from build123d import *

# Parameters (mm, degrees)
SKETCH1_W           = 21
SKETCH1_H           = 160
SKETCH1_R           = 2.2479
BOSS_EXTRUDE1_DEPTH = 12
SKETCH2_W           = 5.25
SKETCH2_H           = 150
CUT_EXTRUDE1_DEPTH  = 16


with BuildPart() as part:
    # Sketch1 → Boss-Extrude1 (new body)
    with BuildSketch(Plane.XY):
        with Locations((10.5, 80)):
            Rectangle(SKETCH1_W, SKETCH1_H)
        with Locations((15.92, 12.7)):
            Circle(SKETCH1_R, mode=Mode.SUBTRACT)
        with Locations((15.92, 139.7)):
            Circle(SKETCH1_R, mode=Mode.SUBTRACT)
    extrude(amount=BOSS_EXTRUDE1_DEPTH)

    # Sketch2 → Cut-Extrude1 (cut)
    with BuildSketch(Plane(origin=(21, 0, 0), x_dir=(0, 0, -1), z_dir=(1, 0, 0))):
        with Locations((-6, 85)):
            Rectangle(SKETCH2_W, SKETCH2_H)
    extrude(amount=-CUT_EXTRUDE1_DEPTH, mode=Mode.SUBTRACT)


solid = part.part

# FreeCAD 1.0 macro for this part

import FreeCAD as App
import Part
import Sketcher
from FreeCAD import Vector


def add_polygon(sketch, points):
    """Adds a closed chain of lines whose ends are joined by coincident constraints."""
    first, n = sketch.GeometryCount, len(points)
    for a, b in zip(points, points[1:] + points[:1]):
        sketch.addGeometry(Part.LineSegment(App.Vector(*a, 0), App.Vector(*b, 0)), False)
    for i in range(n):
        sketch.addConstraint(Sketcher.Constraint("Coincident", first + i, 2, first + (i + 1) % n, 1))

doc = App.newDocument("Part")
body = doc.addObject("PartDesign::Body", "Body")

# Sketch on XY plane
sketch1 = body.newObject("Sketcher::SketchObject", "Sketch")
sketch1.AttachmentSupport = (doc.getObject("XY_Plane"), [""])
sketch1.MapMode = "FlatFace"
add_polygon(sketch1, [(0, 160), (0, 0), (21, 0), (21, 160)])  # lines 0-3
sketch1.addGeometry(Part.Circle(Vector(15.92, 12.7, 0), Vector(0, 0, 1), 2.2479), False)  # 4
sketch1.addGeometry(Part.Circle(Vector(15.92, 139.7, 0), Vector(0, 0, 1), 2.2479), False)  # 5
sketch1.addConstraint([
    Sketcher.Constraint("Vertical", 0),
    Sketcher.Constraint("Horizontal", 1),
    Sketcher.Constraint("Vertical", 2),
    Sketcher.Constraint("Horizontal", 3),
    Sketcher.Constraint("Coincident", 0, 2, -1, 1),
    Sketcher.Constraint("Equal", 4, 5),
    Sketcher.Constraint("Vertical", 4, 3, 5, 3),
    Sketcher.Constraint("DistanceX", 1, 1, 1, 2, 21.0),
    Sketcher.Constraint("DistanceY", 0, 2, 0, 1, 160.0),
    Sketcher.Constraint("DistanceY", 4, 3, 5, 3, 127.0),
    Sketcher.Constraint("Diameter", 4, 4.4958),
    Sketcher.Constraint("DistanceY", -1, 1, 4, 3, 12.7),
    Sketcher.Constraint("DistanceX", -1, 1, 4, 3, 15.92),
])
pad1 = body.newObject("PartDesign::Pad", "Pad")
pad1.Profile = sketch1
pad1.Length = 12

# Sketch on YZ plane
sketch2 = body.newObject("Sketcher::SketchObject", "Sketch001")
sketch2.AttachmentSupport = (doc.getObject("YZ_Plane"), [""])
sketch2.MapMode = "FlatFace"
sketch2.AttachmentOffset = App.Placement(Vector(0, 0, 21), App.Rotation())
add_polygon(sketch2, [(160, 8.625), (10, 8.625), (10, 3.375), (160, 3.375)])  # lines 0-3
sketch2.addConstraint([
    Sketcher.Constraint("Horizontal", 0),
    Sketcher.Constraint("Vertical", 1),
    Sketcher.Constraint("Horizontal", 2),
    Sketcher.Constraint("Vertical", 3),
    Sketcher.Constraint("DistanceX", 0, 2, 0, 1, 150.0),
    Sketcher.Constraint("DistanceX", -1, 1, 0, 2, 10.0),
    Sketcher.Constraint("DistanceY", 1, 2, 1, 1, 5.25),
    Sketcher.Constraint("DistanceY", -1, 1, 0, 2, 8.625),
])
pocket1 = body.newObject("PartDesign::Pocket", "Pocket")
pocket1.Profile = sketch2
pocket1.Length = 16

doc.recompute()
